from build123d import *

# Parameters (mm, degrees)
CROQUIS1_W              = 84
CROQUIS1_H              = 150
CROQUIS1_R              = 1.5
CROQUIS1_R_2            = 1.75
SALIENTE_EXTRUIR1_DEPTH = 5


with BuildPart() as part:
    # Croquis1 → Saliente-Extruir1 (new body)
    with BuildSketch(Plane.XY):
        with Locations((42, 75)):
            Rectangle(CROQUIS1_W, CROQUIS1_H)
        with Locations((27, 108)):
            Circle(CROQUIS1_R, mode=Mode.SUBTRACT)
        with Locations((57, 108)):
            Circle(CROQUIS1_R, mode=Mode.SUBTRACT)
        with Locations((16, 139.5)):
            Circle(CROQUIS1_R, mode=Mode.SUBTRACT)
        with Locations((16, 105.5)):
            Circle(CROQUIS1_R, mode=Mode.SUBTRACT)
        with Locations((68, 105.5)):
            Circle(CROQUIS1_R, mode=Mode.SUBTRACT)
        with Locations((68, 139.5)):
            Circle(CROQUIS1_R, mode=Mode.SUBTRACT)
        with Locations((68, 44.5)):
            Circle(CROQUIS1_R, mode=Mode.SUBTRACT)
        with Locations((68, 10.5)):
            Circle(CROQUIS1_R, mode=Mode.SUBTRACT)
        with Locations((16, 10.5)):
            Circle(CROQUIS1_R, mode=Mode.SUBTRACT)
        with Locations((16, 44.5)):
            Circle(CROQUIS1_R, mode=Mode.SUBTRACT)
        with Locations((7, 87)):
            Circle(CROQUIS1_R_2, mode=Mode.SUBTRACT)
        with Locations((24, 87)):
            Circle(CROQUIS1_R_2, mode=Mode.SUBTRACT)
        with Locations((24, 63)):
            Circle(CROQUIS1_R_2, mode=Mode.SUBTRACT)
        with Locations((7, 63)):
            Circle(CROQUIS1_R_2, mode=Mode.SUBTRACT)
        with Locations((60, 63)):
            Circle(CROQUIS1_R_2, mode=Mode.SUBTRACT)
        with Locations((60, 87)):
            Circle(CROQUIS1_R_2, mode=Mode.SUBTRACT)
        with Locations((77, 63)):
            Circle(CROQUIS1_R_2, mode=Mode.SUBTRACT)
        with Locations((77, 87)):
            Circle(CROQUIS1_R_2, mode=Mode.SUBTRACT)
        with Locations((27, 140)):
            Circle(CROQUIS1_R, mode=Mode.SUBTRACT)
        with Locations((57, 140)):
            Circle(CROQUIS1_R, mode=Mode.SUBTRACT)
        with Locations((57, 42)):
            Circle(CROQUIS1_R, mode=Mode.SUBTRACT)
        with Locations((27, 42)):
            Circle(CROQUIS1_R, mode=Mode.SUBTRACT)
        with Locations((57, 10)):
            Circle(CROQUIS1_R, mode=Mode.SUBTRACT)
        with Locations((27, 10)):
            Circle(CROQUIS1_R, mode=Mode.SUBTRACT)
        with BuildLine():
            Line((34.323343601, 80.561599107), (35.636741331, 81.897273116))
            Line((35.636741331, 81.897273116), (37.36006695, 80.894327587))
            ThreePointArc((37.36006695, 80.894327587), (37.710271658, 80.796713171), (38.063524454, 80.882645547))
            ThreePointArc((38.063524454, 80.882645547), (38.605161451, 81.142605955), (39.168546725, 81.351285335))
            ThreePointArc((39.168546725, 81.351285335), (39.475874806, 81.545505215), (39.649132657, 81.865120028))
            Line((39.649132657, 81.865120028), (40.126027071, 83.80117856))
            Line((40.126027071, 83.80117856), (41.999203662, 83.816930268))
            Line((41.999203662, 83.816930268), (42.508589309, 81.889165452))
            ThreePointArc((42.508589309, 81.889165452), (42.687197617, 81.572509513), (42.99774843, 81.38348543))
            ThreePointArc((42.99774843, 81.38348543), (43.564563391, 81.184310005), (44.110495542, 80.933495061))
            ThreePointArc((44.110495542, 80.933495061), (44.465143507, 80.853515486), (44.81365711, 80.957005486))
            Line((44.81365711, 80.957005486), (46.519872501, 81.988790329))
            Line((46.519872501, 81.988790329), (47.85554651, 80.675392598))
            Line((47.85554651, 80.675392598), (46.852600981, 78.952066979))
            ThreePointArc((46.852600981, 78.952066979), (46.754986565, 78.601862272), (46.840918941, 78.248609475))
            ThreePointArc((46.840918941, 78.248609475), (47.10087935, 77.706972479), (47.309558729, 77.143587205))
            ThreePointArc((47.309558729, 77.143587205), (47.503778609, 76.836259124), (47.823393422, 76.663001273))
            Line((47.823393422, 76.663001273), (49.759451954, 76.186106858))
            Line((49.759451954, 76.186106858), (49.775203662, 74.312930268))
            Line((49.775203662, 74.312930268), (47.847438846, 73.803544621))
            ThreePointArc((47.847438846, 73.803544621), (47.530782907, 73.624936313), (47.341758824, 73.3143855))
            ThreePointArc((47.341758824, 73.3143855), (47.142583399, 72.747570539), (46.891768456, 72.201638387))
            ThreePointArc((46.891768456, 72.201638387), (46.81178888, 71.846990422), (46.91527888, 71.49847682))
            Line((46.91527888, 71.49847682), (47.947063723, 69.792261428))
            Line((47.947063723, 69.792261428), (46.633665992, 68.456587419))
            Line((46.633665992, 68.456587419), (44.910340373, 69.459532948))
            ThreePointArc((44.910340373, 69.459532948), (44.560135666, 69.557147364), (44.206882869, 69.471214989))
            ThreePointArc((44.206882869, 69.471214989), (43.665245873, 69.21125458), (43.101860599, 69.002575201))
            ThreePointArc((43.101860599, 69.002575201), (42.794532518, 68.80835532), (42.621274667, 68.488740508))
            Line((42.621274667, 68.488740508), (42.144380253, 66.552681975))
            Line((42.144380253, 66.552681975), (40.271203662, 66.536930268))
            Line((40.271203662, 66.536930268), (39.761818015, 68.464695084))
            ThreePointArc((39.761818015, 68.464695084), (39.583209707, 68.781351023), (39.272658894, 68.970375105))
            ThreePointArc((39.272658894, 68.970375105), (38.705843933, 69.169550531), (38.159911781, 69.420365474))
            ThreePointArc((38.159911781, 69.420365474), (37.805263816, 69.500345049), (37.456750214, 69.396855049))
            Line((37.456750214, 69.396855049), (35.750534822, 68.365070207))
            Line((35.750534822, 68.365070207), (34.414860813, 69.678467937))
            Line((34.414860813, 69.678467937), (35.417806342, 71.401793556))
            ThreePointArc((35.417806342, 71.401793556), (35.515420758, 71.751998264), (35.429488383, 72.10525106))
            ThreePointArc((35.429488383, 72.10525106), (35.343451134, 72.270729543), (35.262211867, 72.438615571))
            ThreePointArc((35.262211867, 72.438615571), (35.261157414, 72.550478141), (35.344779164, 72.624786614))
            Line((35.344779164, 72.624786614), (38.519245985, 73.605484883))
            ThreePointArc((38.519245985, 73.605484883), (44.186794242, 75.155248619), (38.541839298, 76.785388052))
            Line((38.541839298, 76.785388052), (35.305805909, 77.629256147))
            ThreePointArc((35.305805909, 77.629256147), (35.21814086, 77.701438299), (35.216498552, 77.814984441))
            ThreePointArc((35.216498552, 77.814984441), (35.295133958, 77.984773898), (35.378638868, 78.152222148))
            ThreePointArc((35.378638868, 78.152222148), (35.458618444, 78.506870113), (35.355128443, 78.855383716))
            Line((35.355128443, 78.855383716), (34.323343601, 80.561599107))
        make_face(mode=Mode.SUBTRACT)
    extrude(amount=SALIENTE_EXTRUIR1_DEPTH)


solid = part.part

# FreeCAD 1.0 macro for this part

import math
import FreeCAD as App
import Part
import Sketcher
from FreeCAD import Vector


def add_polygon(sketch, points):
    """Adds a closed chain of lines whose ends are joined by coincident constraints."""
    first, n = sketch.GeometryCount, len(points)
    for a, b in zip(points, points[1:] + points[:1]):
        sketch.addGeometry(Part.LineSegment(App.Vector(*a, 0), App.Vector(*b, 0)), False)
    for i in range(n):
        sketch.addConstraint(Sketcher.Constraint("Coincident", first + i, 2, first + (i + 1) % n, 1))

doc = App.newDocument("Part")
body = doc.addObject("PartDesign::Body", "Body")

# Sketch on XY plane
sketch1 = body.newObject("Sketcher::SketchObject", "Sketch")
sketch1.AttachmentSupport = (doc.getObject("XY_Plane"), [""])
sketch1.MapMode = "FlatFace"
add_polygon(sketch1, [(0, 150), (0, 0), (84, 0), (84, 150)])  # lines 0-3
sketch1.addGeometry(Part.Circle(Vector(16, 10.5, 0), Vector(0, 0, 1), 1.5), False)  # 4
sketch1.addGeometry(Part.Circle(Vector(27, 10, 0), Vector(0, 0, 1), 1.5), False)  # 5
sketch1.addGeometry(Part.Circle(Vector(16, 44.5, 0), Vector(0, 0, 1), 1.5), False)  # 6
sketch1.addGeometry(Part.Circle(Vector(7, 63, 0), Vector(0, 0, 1), 1.75), False)  # 7
sketch1.addGeometry(Part.Circle(Vector(27, 42, 0), Vector(0, 0, 1), 1.5), False)  # 8
sketch1.addGeometry(Part.Circle(Vector(24, 63, 0), Vector(0, 0, 1), 1.75), False)  # 9
sketch1.addGeometry(Part.Circle(Vector(57, 10, 0), Vector(0, 0, 1), 1.5), False)  # 10
sketch1.addGeometry(Part.Circle(Vector(68, 10.5, 0), Vector(0, 0, 1), 1.5), False)  # 11
sketch1.addGeometry(Part.Circle(Vector(57, 42, 0), Vector(0, 0, 1), 1.5), False)  # 12
sketch1.addGeometry(Part.Circle(Vector(60, 63, 0), Vector(0, 0, 1), 1.75), False)  # 13
sketch1.addGeometry(Part.Circle(Vector(68, 44.5, 0), Vector(0, 0, 1), 1.5), False)  # 14
sketch1.addGeometry(Part.Circle(Vector(77, 63, 0), Vector(0, 0, 1), 1.75), False)  # 15
sketch1.addGeometry(Part.Circle(Vector(7, 87, 0), Vector(0, 0, 1), 1.75), False)  # 16
sketch1.addGeometry(Part.Circle(Vector(16, 105.5, 0), Vector(0, 0, 1), 1.5), False)  # 17
sketch1.addGeometry(Part.Circle(Vector(24, 87, 0), Vector(0, 0, 1), 1.75), False)  # 18
sketch1.addGeometry(Part.Circle(Vector(27, 108, 0), Vector(0, 0, 1), 1.5), False)  # 19
sketch1.addGeometry(Part.Circle(Vector(16, 139.5, 0), Vector(0, 0, 1), 1.5), False)  # 20
sketch1.addGeometry(Part.Circle(Vector(27, 140, 0), Vector(0, 0, 1), 1.5), False)  # 21
sketch1.addGeometry(Part.LineSegment(Vector(35.355128, 78.855384, 0), Vector(34.323344, 80.561599, 0)), False)  # 22
sketch1.addGeometry(Part.LineSegment(Vector(34.323344, 80.561599, 0), Vector(35.636741, 81.897273, 0)), False)  # 23
sketch1.addGeometry(Part.LineSegment(Vector(35.636741, 81.897273, 0), Vector(37.360067, 80.894328, 0)), False)  # 24
sketch1.addGeometry(Part.ArcOfCircle(Part.Circle(Vector(37.722227, 81.516614, 0), Vector(0, 0, 1), 0.72), math.radians(-120.198661), math.radians(-61.704141)), False)  # 25
sketch1.addGeometry(Part.ArcOfCircle(Part.Circle(Vector(41.135204, 75.17693, 0), Vector(0, 0, 1), 6.48), math.radians(107.667729), math.radians(118.295859)), False)  # 26
sketch1.addGeometry(Part.ArcOfCircle(Part.Circle(Vector(38.950029, 82.037325, 0), Vector(0, 0, 1), 0.72), math.radians(-72.332271), math.radians(-13.837752)), False)  # 27
sketch1.addGeometry(Part.LineSegment(Vector(39.649133, 81.86512, 0), Vector(40.126027, 83.801179, 0)), False)  # 28
sketch1.addGeometry(Part.LineSegment(Vector(40.126027, 83.801179, 0), Vector(41.999204, 83.81693, 0)), False)  # 29
sketch1.addGeometry(Part.LineSegment(Vector(41.999204, 83.81693, 0), Vector(42.508589, 81.889165, 0)), False)  # 30
sketch1.addGeometry(Part.ArcOfCircle(Part.Circle(Vector(43.204698, 82.073103, 0), Vector(0, 0, 1), 0.72), math.radians(-165.19866), math.radians(-106.704141)), False)  # 31
sketch1.addGeometry(Part.ArcOfCircle(Part.Circle(Vector(41.135204, 75.17693, 0), Vector(0, 0, 1), 6.48), math.radians(62.667729), math.radians(73.295859)), False)  # 32
sketch1.addGeometry(Part.ArcOfCircle(Part.Circle(Vector(44.441084, 81.573113, 0), Vector(0, 0, 1), 0.72), math.radians(-117.332271), math.radians(-58.837752)), False)  # 33
sketch1.addGeometry(Part.LineSegment(Vector(44.813657, 80.957005, 0), Vector(46.519873, 81.98879, 0)), False)  # 34
sketch1.addGeometry(Part.LineSegment(Vector(46.519873, 81.98879, 0), Vector(47.855547, 80.675393, 0)), False)  # 35
sketch1.addGeometry(Part.LineSegment(Vector(47.855547, 80.675393, 0), Vector(46.852601, 78.952067, 0)), False)  # 36
sketch1.addGeometry(Part.ArcOfCircle(Part.Circle(Vector(47.474887, 78.589907, 0), Vector(0, 0, 1), 0.72), math.radians(149.801339), math.radians(208.295859)), False)  # 37
sketch1.addGeometry(Part.ArcOfCircle(Part.Circle(Vector(41.135204, 75.17693, 0), Vector(0, 0, 1), 6.48), math.radians(17.667729), math.radians(28.295859)), False)  # 38
sketch1.addGeometry(Part.ArcOfCircle(Part.Circle(Vector(47.995598, 77.362105, 0), Vector(0, 0, 1), 0.72), math.radians(-162.332271), math.radians(-103.837752)), False)  # 39
sketch1.addGeometry(Part.LineSegment(Vector(47.823393, 76.663001, 0), Vector(49.759452, 76.186107, 0)), False)  # 40
sketch1.addGeometry(Part.LineSegment(Vector(49.759452, 76.186107, 0), Vector(49.775204, 74.31293, 0)), False)  # 41
sketch1.addGeometry(Part.LineSegment(Vector(49.775204, 74.31293, 0), Vector(47.847439, 73.803545, 0)), False)  # 42
sketch1.addGeometry(Part.ArcOfCircle(Part.Circle(Vector(48.031376, 73.107436, 0), Vector(0, 0, 1), 0.72), math.radians(104.80134), math.radians(163.295859)), False)  # 43
sketch1.addGeometry(Part.ArcOfCircle(Part.Circle(Vector(41.135204, 75.17693, 0), Vector(0, 0, 1), 6.48), math.radians(-27.332271), math.radians(-16.704141)), False)  # 44
sketch1.addGeometry(Part.ArcOfCircle(Part.Circle(Vector(47.531387, 71.87105, 0), Vector(0, 0, 1), 0.72), math.radians(152.667729), math.radians(211.162248)), False)  # 45
sketch1.addGeometry(Part.LineSegment(Vector(46.915279, 71.498477, 0), Vector(47.947064, 69.792261, 0)), False)  # 46
sketch1.addGeometry(Part.LineSegment(Vector(47.947064, 69.792261, 0), Vector(46.633666, 68.456587, 0)), False)  # 47
sketch1.addGeometry(Part.LineSegment(Vector(46.633666, 68.456587, 0), Vector(44.91034, 69.459533, 0)), False)  # 48
sketch1.addGeometry(Part.ArcOfCircle(Part.Circle(Vector(44.548181, 68.837247, 0), Vector(0, 0, 1), 0.72), math.radians(59.801339), math.radians(118.295859)), False)  # 49
sketch1.addGeometry(Part.ArcOfCircle(Part.Circle(Vector(41.135204, 75.17693, 0), Vector(0, 0, 1), 6.48), math.radians(-72.332271), math.radians(-61.704141)), False)  # 50
sketch1.addGeometry(Part.ArcOfCircle(Part.Circle(Vector(43.320378, 68.316536, 0), Vector(0, 0, 1), 0.72), math.radians(107.667729), math.radians(166.162248)), False)  # 51
sketch1.addGeometry(Part.LineSegment(Vector(42.621275, 68.488741, 0), Vector(42.14438, 66.552682, 0)), False)  # 52
sketch1.addGeometry(Part.LineSegment(Vector(42.14438, 66.552682, 0), Vector(40.271204, 66.53693, 0)), False)  # 53
sketch1.addGeometry(Part.LineSegment(Vector(40.271204, 66.53693, 0), Vector(39.761818, 68.464695, 0)), False)  # 54
sketch1.addGeometry(Part.ArcOfCircle(Part.Circle(Vector(39.065709, 68.280758, 0), Vector(0, 0, 1), 0.72), math.radians(14.801339), math.radians(73.295859)), False)  # 55
sketch1.addGeometry(Part.ArcOfCircle(Part.Circle(Vector(41.135204, 75.17693, 0), Vector(0, 0, 1), 6.48), math.radians(-117.332271), math.radians(-106.704141)), False)  # 56
sketch1.addGeometry(Part.ArcOfCircle(Part.Circle(Vector(37.829324, 68.780747, 0), Vector(0, 0, 1), 0.72), math.radians(62.667729), math.radians(121.162248)), False)  # 57
sketch1.addGeometry(Part.LineSegment(Vector(37.45675, 69.396855, 0), Vector(35.750535, 68.36507, 0)), False)  # 58
sketch1.addGeometry(Part.LineSegment(Vector(35.750535, 68.36507, 0), Vector(34.414861, 69.678468, 0)), False)  # 59
sketch1.addGeometry(Part.LineSegment(Vector(34.414861, 69.678468, 0), Vector(35.417806, 71.401794, 0)), False)  # 60
sketch1.addGeometry(Part.ArcOfCircle(Part.Circle(Vector(34.79552, 71.763953, 0), Vector(0, 0, 1), 0.72), math.radians(-30.198661), math.radians(28.295859)), False)  # 61
sketch1.addGeometry(Part.ArcOfCircle(Part.Circle(Vector(41.135204, 75.176931, 0), Vector(0, 0, 1), 6.480001), math.radians(-155.002455), math.radians(-151.704141)), False)  # 62
sketch1.addGeometry(Part.ArcOfCircle(Part.Circle(Vector(35.384656, 72.495706, 0), Vector(0, 0, 1), 0.1351), math.radians(107.167657), math.radians(204.997545)), False)  # 63
sketch1.addGeometry(Part.LineSegment(Vector(35.344779, 72.624787, 0), Vector(38.519246, 73.605485, 0)), False)  # 64
sketch1.addGeometry(Part.ArcOfCircle(Part.Circle(Vector(41.135204, 75.17693, 0), Vector(0, 0, 1), 3.051668), math.radians(-149.006125), math.radians(148.191962)), False)  # 65
sketch1.addGeometry(Part.LineSegment(Vector(38.541839, 76.785388, 0), Vector(35.305806, 77.629256, 0)), False)  # 66
sketch1.addGeometry(Part.ArcOfCircle(Part.Circle(Vector(35.339896, 77.759984, 0), Vector(0, 0, 1), 0.1351), math.radians(155.976762), math.radians(255.38434)), False)  # 67
sketch1.addGeometry(Part.ArcOfCircle(Part.Circle(Vector(41.135204, 75.17693, 0), Vector(0, 0, 1), 6.48), math.radians(152.667729), math.radians(155.976762)), False)  # 68
sketch1.addGeometry(Part.ArcOfCircle(Part.Circle(Vector(34.739021, 78.48281, 0), Vector(0, 0, 1), 0.72), math.radians(-27.332271), math.radians(31.162249)), False)  # 69
sketch1.addGeometry(Part.Circle(Vector(60, 87, 0), Vector(0, 0, 1), 1.75), False)  # 70
sketch1.addGeometry(Part.Circle(Vector(57, 108, 0), Vector(0, 0, 1), 1.5), False)  # 71
sketch1.addGeometry(Part.Circle(Vector(77, 87, 0), Vector(0, 0, 1), 1.75), False)  # 72
sketch1.addGeometry(Part.Circle(Vector(68, 105.5, 0), Vector(0, 0, 1), 1.5), False)  # 73
sketch1.addGeometry(Part.Circle(Vector(57, 140, 0), Vector(0, 0, 1), 1.5), False)  # 74
sketch1.addGeometry(Part.Circle(Vector(68, 139.5, 0), Vector(0, 0, 1), 1.5), False)  # 75
sketch1.addConstraint([
    Sketcher.Constraint("Coincident", 22, 2, 23, 1),
    Sketcher.Constraint("Coincident", 23, 2, 24, 1),
    Sketcher.Constraint("Tangent", 24, 2, 25, 1),
    Sketcher.Constraint("Tangent", 25, 2, 26, 2),
    Sketcher.Constraint("Tangent", 26, 1, 27, 1),
    Sketcher.Constraint("Tangent", 27, 2, 28, 1),
    Sketcher.Constraint("Coincident", 28, 2, 29, 1),
    Sketcher.Constraint("Coincident", 29, 2, 30, 1),
    Sketcher.Constraint("Tangent", 30, 2, 31, 1),
    Sketcher.Constraint("Tangent", 31, 2, 32, 2),
    Sketcher.Constraint("Tangent", 32, 1, 33, 1),
    Sketcher.Constraint("Tangent", 33, 2, 34, 1),
    Sketcher.Constraint("Coincident", 34, 2, 35, 1),
    Sketcher.Constraint("Coincident", 35, 2, 36, 1),
    Sketcher.Constraint("Tangent", 36, 2, 37, 1),
    Sketcher.Constraint("Tangent", 37, 2, 38, 2),
    Sketcher.Constraint("Tangent", 38, 1, 39, 1),
    Sketcher.Constraint("Tangent", 39, 2, 40, 1),
    Sketcher.Constraint("Coincident", 40, 2, 41, 1),
    Sketcher.Constraint("Coincident", 41, 2, 42, 1),
    Sketcher.Constraint("Tangent", 42, 2, 43, 1),
    Sketcher.Constraint("Tangent", 43, 2, 44, 2),
    Sketcher.Constraint("Tangent", 44, 1, 45, 1),
    Sketcher.Constraint("Tangent", 45, 2, 46, 1),
    Sketcher.Constraint("Coincident", 46, 2, 47, 1),
    Sketcher.Constraint("Coincident", 47, 2, 48, 1),
    Sketcher.Constraint("Tangent", 48, 2, 49, 1),
    Sketcher.Constraint("Tangent", 49, 2, 50, 2),
    Sketcher.Constraint("Tangent", 50, 1, 51, 1),
    Sketcher.Constraint("Tangent", 51, 2, 52, 1),
    Sketcher.Constraint("Coincident", 52, 2, 53, 1),
    Sketcher.Constraint("Coincident", 53, 2, 54, 1),
    Sketcher.Constraint("Tangent", 54, 2, 55, 1),
    Sketcher.Constraint("Tangent", 55, 2, 56, 2),
    Sketcher.Constraint("Tangent", 56, 1, 57, 1),
    Sketcher.Constraint("Tangent", 57, 2, 58, 1),
    Sketcher.Constraint("Coincident", 58, 2, 59, 1),
    Sketcher.Constraint("Coincident", 59, 2, 60, 1),
    Sketcher.Constraint("Tangent", 60, 2, 61, 1),
    Sketcher.Constraint("Tangent", 61, 2, 62, 2),
    Sketcher.Constraint("Tangent", 62, 1, 63, 2),
    Sketcher.Constraint("Tangent", 63, 1, 64, 1),
    Sketcher.Constraint("Coincident", 64, 2, 65, 1),
    Sketcher.Constraint("Coincident", 65, 2, 66, 1),
    Sketcher.Constraint("Tangent", 66, 2, 67, 2),
    Sketcher.Constraint("Tangent", 67, 1, 68, 2),
    Sketcher.Constraint("Tangent", 68, 1, 69, 1),
    Sketcher.Constraint("Tangent", 69, 2, 22, 1),
    Sketcher.Constraint("Vertical", 0),
    Sketcher.Constraint("Horizontal", 1),
    Sketcher.Constraint("Vertical", 2),
    Sketcher.Constraint("Horizontal", 3),
    Sketcher.Constraint("Coincident", 0, 2, -1, 1),
    Sketcher.Constraint("Coincident", 32, 3, 26, 3),
    Sketcher.Constraint("Coincident", 38, 3, 26, 3),
    Sketcher.Constraint("Coincident", 44, 3, 26, 3),
    Sketcher.Constraint("Coincident", 50, 3, 26, 3),
    Sketcher.Constraint("Coincident", 56, 3, 26, 3),
    Sketcher.Constraint("Coincident", 62, 3, 26, 3),
    Sketcher.Constraint("Coincident", 65, 3, 26, 3),
    Sketcher.Constraint("Coincident", 68, 3, 26, 3),
    Sketcher.Constraint("Equal", 4, 5),
    Sketcher.Constraint("Equal", 5, 6),
    Sketcher.Constraint("Equal", 6, 8),
    Sketcher.Constraint("Equal", 7, 9),
    Sketcher.Constraint("Equal", 8, 10),
    Sketcher.Constraint("Equal", 10, 11),
    Sketcher.Constraint("Equal", 11, 12),
    Sketcher.Constraint("Equal", 9, 13),
    Sketcher.Constraint("Equal", 12, 14),
    Sketcher.Constraint("Equal", 13, 15),
    Sketcher.Constraint("Equal", 15, 16),
    Sketcher.Constraint("Equal", 14, 17),
    Sketcher.Constraint("Equal", 16, 18),
    Sketcher.Constraint("Equal", 17, 19),
    Sketcher.Constraint("Equal", 19, 20),
    Sketcher.Constraint("Equal", 20, 21),
    Sketcher.Constraint("Equal", 25, 27),
    Sketcher.Constraint("Equal", 27, 31),
    Sketcher.Constraint("Equal", 26, 32),
    Sketcher.Constraint("Equal", 31, 33),
    Sketcher.Constraint("Equal", 33, 37),
    Sketcher.Constraint("Equal", 32, 38),
    Sketcher.Constraint("Equal", 37, 39),
    Sketcher.Constraint("Equal", 39, 43),
    Sketcher.Constraint("Equal", 38, 44),
    Sketcher.Constraint("Equal", 43, 45),
    Sketcher.Constraint("Equal", 45, 49),
    Sketcher.Constraint("Equal", 44, 50),
    Sketcher.Constraint("Equal", 49, 51),
    Sketcher.Constraint("Equal", 51, 55),
    Sketcher.Constraint("Equal", 50, 56),
    Sketcher.Constraint("Equal", 55, 57),
    Sketcher.Constraint("Equal", 57, 61),
    Sketcher.Constraint("Equal", 56, 62),
    Sketcher.Constraint("Equal", 63, 67),
    Sketcher.Constraint("Equal", 62, 68),
    Sketcher.Constraint("Equal", 61, 69),
    Sketcher.Constraint("Equal", 18, 70),
    Sketcher.Constraint("Equal", 21, 71),
    Sketcher.Constraint("Equal", 70, 72),
    Sketcher.Constraint("Equal", 71, 73),
    Sketcher.Constraint("Equal", 73, 74),
    Sketcher.Constraint("Equal", 74, 75),
    Sketcher.Constraint("Perpendicular", 22, 34),
    Sketcher.Constraint("Perpendicular", 23, 35),
    Sketcher.Constraint("Perpendicular", 24, 36),
    Sketcher.Constraint("Perpendicular", 28, 40),
    Sketcher.Constraint("Perpendicular", 29, 41),
    Sketcher.Constraint("Perpendicular", 30, 42),
    Sketcher.Constraint("Perpendicular", 34, 46),
    Sketcher.Constraint("Perpendicular", 35, 47),
    Sketcher.Constraint("Perpendicular", 36, 48),
    Sketcher.Constraint("Perpendicular", 40, 52),
    Sketcher.Constraint("Perpendicular", 41, 53),
    Sketcher.Constraint("Perpendicular", 42, 54),
    Sketcher.Constraint("Perpendicular", 46, 58),
    Sketcher.Constraint("Perpendicular", 47, 59),
    Sketcher.Constraint("Perpendicular", 48, 60),
    Sketcher.Constraint("Horizontal", 7, 3, 9, 3),
    Sketcher.Constraint("Horizontal", 5, 3, 10, 3),
    Sketcher.Constraint("Horizontal", 4, 3, 11, 3),
    Sketcher.Constraint("Horizontal", 8, 3, 12, 3),
    Sketcher.Constraint("Horizontal", 9, 3, 13, 3),
    Sketcher.Constraint("Horizontal", 6, 3, 14, 3),
    Sketcher.Constraint("Horizontal", 13, 3, 15, 3),
    Sketcher.Constraint("Horizontal", 16, 3, 18, 3),
    Sketcher.Constraint("Horizontal", 18, 3, 70, 3),
    Sketcher.Constraint("Horizontal", 19, 3, 71, 3),
    Sketcher.Constraint("Horizontal", 70, 3, 72, 3),
    Sketcher.Constraint("Horizontal", 17, 3, 73, 3),
    Sketcher.Constraint("Horizontal", 21, 3, 74, 3),
    Sketcher.Constraint("Horizontal", 20, 3, 75, 3),
    Sketcher.Constraint("Vertical", 4, 3, 6, 3),
    Sketcher.Constraint("Vertical", 5, 3, 8, 3),
    Sketcher.Constraint("Vertical", 10, 3, 12, 3),
    Sketcher.Constraint("Vertical", 11, 3, 14, 3),
    Sketcher.Constraint("Vertical", 7, 3, 16, 3),
    Sketcher.Constraint("Vertical", 6, 3, 17, 3),
    Sketcher.Constraint("Vertical", 9, 3, 18, 3),
    Sketcher.Constraint("Vertical", 8, 3, 19, 3),
    Sketcher.Constraint("Vertical", 17, 3, 20, 3),
    Sketcher.Constraint("Vertical", 19, 3, 21, 3),
    Sketcher.Constraint("Vertical", 13, 3, 70, 3),
    Sketcher.Constraint("Vertical", 12, 3, 71, 3),
    Sketcher.Constraint("Vertical", 15, 3, 72, 3),
    Sketcher.Constraint("Vertical", 14, 3, 73, 3),
    Sketcher.Constraint("Vertical", 71, 3, 74, 3),
    Sketcher.Constraint("Vertical", 73, 3, 75, 3),
    Sketcher.Constraint("Equal", 22, 24),
    Sketcher.Constraint("Equal", 24, 28),
    Sketcher.Constraint("Equal", 23, 29),
    Sketcher.Constraint("Equal", 28, 30),
    Sketcher.Constraint("Equal", 30, 34),
    Sketcher.Constraint("Equal", 29, 35),
    Sketcher.Constraint("Equal", 34, 36),
    Sketcher.Constraint("Equal", 36, 40),
    Sketcher.Constraint("Equal", 35, 41),
    Sketcher.Constraint("Equal", 40, 42),
    Sketcher.Constraint("Equal", 42, 46),
    Sketcher.Constraint("Equal", 41, 47),
    Sketcher.Constraint("Equal", 46, 48),
    Sketcher.Constraint("Equal", 48, 52),
    Sketcher.Constraint("Equal", 47, 53),
    Sketcher.Constraint("Equal", 52, 54),
    Sketcher.Constraint("Equal", 54, 58),
    Sketcher.Constraint("Equal", 53, 59),
    Sketcher.Constraint("Equal", 58, 60),
    Sketcher.Constraint("Diameter", 4, 3.0),
    Sketcher.Constraint("Diameter", 7, 3.5),
    Sketcher.Constraint("DistanceX", 1, 1, 1, 2, 84.0),
    Sketcher.Constraint("DistanceY", 0, 2, 0, 1, 150.0),
    Sketcher.Constraint("Radius", 25, 0.72),
    Sketcher.Constraint("Radius", 26, 6.48),
    Sketcher.Constraint("DistanceX", -1, 1, 4, 3, 16.0),
    Sketcher.Constraint("DistanceX", -1, 1, 5, 3, 27.0),
    Sketcher.Constraint("DistanceY", -1, 1, 5, 3, 10.0),
    Sketcher.Constraint("DistanceX", -1, 1, 7, 3, 7.0),
    Sketcher.Constraint("DistanceY", -1, 1, 7, 3, 63.0),
    Sketcher.Constraint("DistanceY", -1, 1, 8, 3, 42.0),
    Sketcher.Constraint("DistanceX", -1, 1, 9, 3, 24.0),
    Sketcher.Constraint("DistanceX", -1, 1, 10, 3, 57.0),
    Sketcher.Constraint("DistanceX", -1, 1, 11, 3, 68.0),
    Sketcher.Constraint("DistanceX", -1, 1, 13, 3, 60.0),
    Sketcher.Constraint("DistanceX", -1, 1, 15, 3, 77.0),
    Sketcher.Constraint("DistanceY", -1, 1, 16, 3, 87.0),
    Sketcher.Constraint("DistanceY", -1, 1, 19, 3, 108.0),
    Sketcher.Constraint("DistanceY", -1, 1, 21, 3, 140.0),
    Sketcher.Constraint("DistanceY", -1, 1, 4, 3, 10.5),
    Sketcher.Constraint("DistanceY", -1, 1, 6, 3, 44.5),
    Sketcher.Constraint("DistanceY", -1, 1, 17, 3, 105.5),
    Sketcher.Constraint("DistanceY", -1, 1, 20, 3, 139.5),
    Sketcher.Constraint("Radius", 63, 0.1351),
    Sketcher.Constraint("DistanceY", -1, 1, 39, 2, 76.663001),
    Sketcher.Constraint("Radius", 65, 3.051668),
    Sketcher.Constraint("Distance", 64, 3.3225),
    Sketcher.Constraint("DistanceX", -1, 1, 39, 3, 47.995598),
    Sketcher.Constraint("DistanceY", -1, 1, 22, 2, 80.561599),
    Sketcher.Constraint("DistanceX", -1, 1, 36, 2, 46.852601),
    Sketcher.Constraint("DistanceX", -1, 1, 67, 1, 35.216499),
    Sketcher.Constraint("Distance", 22, 1.993929),
    Sketcher.Constraint("DistanceY", -1, 1, 26, 3, 75.17693),
    Sketcher.Constraint("DistanceX", -1, 1, 27, 3, 38.950029),
    Sketcher.Constraint("DistanceY", -1, 1, 45, 3, 71.87105),
    Sketcher.Constraint("DistanceX", -1, 1, 49, 3, 44.548181),
    Sketcher.Constraint("DistanceX", -1, 1, 55, 3, 39.065709),
    Sketcher.Constraint("DistanceX", -1, 1, 62, 1, 35.262212),
    Sketcher.Constraint("DistanceX", -1, 1, 65, 2, 38.541839),
])
pad1 = body.newObject("PartDesign::Pad", "Pad")
pad1.Profile = sketch1
pad1.Length = 5

doc.recompute()
